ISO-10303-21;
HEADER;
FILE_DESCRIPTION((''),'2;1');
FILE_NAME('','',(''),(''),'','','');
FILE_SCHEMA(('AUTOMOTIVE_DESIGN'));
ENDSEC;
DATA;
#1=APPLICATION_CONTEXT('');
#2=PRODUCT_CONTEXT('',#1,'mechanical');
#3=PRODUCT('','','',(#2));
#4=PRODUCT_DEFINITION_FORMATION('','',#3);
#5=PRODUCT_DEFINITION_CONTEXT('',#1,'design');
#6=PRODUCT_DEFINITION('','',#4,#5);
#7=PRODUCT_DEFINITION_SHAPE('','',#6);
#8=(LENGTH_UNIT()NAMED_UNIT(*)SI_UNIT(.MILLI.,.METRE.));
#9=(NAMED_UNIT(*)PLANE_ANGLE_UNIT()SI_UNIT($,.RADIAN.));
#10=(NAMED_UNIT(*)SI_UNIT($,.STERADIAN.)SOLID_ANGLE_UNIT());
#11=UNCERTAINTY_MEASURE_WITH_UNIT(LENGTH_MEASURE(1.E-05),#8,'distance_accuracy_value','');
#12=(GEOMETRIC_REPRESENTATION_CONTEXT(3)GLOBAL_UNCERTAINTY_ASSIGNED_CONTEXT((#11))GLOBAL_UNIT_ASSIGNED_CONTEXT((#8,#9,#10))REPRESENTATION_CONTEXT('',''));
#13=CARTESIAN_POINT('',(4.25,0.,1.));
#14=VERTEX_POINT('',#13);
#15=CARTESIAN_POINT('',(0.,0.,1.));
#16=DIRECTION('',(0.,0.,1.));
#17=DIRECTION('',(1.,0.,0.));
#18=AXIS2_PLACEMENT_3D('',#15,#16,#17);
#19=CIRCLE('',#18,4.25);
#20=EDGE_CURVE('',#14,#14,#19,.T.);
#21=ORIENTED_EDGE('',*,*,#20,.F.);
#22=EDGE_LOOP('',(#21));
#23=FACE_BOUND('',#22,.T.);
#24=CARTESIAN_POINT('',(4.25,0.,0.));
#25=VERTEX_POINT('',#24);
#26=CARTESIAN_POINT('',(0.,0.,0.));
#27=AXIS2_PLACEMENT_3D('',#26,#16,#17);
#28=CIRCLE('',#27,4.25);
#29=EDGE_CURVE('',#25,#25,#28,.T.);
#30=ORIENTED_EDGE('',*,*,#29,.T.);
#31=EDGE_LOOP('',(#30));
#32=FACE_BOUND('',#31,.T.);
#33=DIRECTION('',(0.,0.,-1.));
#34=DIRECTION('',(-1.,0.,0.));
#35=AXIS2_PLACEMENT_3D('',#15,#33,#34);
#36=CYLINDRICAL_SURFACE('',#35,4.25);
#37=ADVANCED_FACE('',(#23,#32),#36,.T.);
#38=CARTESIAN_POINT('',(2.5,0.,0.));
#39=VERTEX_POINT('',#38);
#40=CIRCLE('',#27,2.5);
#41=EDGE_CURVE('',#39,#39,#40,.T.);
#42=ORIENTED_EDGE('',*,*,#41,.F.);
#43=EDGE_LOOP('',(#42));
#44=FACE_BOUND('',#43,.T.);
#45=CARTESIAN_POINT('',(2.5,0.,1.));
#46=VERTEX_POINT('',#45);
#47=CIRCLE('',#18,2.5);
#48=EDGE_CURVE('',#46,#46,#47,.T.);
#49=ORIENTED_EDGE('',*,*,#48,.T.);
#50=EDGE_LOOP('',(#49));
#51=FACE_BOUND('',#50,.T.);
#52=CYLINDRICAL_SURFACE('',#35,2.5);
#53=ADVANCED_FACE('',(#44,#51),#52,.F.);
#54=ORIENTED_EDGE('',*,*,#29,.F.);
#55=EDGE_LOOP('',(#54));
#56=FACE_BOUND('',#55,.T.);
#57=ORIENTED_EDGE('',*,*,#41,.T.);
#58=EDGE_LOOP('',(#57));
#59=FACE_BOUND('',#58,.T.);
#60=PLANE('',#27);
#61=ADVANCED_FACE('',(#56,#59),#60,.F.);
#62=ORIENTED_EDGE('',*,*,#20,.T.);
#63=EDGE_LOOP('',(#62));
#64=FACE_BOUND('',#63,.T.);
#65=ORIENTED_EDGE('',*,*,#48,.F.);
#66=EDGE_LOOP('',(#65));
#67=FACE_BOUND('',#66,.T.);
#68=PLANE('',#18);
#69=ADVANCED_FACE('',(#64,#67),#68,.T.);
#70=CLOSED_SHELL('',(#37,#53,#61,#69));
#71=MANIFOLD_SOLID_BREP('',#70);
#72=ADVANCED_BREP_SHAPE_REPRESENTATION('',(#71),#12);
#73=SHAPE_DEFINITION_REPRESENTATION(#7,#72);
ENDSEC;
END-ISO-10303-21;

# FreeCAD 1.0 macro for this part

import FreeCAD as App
import Part
import Sketcher

doc = App.newDocument("Part")
body = doc.addObject("PartDesign::Body", "Body")

# Sketch on XY plane
sketch1 = doc.addObject("Sketcher::SketchObject", "Sketch")
body.addObject(sketch1)
sketch1.AttachmentSupport = (doc.XY_Plane, [""])
sketch1.MapMode = "FlatFace"
sketch1.addGeometry([
    Part.Circle(App.Vector(0, 0, 0), App.Vector(0, 0, 1), 4.2),
    Part.Circle(App.Vector(0, 0, 0), App.Vector(0, 0, 1), 2.5),
], False)
sketch1.addConstraint([
    Sketcher.Constraint("Coincident", 0, 3, -1, 1),
    Sketcher.Constraint("Coincident", 1, 3, -1, 1),
    Sketcher.Constraint("Diameter", 1, 5.0),
    Sketcher.Constraint("Diameter", 0, 8.5),
])
pad1 = doc.addObject("PartDesign::Pad", "Pad")
body.addObject(pad1)
pad1.Profile = sketch1
pad1.Length = 1

doc.recompute()
